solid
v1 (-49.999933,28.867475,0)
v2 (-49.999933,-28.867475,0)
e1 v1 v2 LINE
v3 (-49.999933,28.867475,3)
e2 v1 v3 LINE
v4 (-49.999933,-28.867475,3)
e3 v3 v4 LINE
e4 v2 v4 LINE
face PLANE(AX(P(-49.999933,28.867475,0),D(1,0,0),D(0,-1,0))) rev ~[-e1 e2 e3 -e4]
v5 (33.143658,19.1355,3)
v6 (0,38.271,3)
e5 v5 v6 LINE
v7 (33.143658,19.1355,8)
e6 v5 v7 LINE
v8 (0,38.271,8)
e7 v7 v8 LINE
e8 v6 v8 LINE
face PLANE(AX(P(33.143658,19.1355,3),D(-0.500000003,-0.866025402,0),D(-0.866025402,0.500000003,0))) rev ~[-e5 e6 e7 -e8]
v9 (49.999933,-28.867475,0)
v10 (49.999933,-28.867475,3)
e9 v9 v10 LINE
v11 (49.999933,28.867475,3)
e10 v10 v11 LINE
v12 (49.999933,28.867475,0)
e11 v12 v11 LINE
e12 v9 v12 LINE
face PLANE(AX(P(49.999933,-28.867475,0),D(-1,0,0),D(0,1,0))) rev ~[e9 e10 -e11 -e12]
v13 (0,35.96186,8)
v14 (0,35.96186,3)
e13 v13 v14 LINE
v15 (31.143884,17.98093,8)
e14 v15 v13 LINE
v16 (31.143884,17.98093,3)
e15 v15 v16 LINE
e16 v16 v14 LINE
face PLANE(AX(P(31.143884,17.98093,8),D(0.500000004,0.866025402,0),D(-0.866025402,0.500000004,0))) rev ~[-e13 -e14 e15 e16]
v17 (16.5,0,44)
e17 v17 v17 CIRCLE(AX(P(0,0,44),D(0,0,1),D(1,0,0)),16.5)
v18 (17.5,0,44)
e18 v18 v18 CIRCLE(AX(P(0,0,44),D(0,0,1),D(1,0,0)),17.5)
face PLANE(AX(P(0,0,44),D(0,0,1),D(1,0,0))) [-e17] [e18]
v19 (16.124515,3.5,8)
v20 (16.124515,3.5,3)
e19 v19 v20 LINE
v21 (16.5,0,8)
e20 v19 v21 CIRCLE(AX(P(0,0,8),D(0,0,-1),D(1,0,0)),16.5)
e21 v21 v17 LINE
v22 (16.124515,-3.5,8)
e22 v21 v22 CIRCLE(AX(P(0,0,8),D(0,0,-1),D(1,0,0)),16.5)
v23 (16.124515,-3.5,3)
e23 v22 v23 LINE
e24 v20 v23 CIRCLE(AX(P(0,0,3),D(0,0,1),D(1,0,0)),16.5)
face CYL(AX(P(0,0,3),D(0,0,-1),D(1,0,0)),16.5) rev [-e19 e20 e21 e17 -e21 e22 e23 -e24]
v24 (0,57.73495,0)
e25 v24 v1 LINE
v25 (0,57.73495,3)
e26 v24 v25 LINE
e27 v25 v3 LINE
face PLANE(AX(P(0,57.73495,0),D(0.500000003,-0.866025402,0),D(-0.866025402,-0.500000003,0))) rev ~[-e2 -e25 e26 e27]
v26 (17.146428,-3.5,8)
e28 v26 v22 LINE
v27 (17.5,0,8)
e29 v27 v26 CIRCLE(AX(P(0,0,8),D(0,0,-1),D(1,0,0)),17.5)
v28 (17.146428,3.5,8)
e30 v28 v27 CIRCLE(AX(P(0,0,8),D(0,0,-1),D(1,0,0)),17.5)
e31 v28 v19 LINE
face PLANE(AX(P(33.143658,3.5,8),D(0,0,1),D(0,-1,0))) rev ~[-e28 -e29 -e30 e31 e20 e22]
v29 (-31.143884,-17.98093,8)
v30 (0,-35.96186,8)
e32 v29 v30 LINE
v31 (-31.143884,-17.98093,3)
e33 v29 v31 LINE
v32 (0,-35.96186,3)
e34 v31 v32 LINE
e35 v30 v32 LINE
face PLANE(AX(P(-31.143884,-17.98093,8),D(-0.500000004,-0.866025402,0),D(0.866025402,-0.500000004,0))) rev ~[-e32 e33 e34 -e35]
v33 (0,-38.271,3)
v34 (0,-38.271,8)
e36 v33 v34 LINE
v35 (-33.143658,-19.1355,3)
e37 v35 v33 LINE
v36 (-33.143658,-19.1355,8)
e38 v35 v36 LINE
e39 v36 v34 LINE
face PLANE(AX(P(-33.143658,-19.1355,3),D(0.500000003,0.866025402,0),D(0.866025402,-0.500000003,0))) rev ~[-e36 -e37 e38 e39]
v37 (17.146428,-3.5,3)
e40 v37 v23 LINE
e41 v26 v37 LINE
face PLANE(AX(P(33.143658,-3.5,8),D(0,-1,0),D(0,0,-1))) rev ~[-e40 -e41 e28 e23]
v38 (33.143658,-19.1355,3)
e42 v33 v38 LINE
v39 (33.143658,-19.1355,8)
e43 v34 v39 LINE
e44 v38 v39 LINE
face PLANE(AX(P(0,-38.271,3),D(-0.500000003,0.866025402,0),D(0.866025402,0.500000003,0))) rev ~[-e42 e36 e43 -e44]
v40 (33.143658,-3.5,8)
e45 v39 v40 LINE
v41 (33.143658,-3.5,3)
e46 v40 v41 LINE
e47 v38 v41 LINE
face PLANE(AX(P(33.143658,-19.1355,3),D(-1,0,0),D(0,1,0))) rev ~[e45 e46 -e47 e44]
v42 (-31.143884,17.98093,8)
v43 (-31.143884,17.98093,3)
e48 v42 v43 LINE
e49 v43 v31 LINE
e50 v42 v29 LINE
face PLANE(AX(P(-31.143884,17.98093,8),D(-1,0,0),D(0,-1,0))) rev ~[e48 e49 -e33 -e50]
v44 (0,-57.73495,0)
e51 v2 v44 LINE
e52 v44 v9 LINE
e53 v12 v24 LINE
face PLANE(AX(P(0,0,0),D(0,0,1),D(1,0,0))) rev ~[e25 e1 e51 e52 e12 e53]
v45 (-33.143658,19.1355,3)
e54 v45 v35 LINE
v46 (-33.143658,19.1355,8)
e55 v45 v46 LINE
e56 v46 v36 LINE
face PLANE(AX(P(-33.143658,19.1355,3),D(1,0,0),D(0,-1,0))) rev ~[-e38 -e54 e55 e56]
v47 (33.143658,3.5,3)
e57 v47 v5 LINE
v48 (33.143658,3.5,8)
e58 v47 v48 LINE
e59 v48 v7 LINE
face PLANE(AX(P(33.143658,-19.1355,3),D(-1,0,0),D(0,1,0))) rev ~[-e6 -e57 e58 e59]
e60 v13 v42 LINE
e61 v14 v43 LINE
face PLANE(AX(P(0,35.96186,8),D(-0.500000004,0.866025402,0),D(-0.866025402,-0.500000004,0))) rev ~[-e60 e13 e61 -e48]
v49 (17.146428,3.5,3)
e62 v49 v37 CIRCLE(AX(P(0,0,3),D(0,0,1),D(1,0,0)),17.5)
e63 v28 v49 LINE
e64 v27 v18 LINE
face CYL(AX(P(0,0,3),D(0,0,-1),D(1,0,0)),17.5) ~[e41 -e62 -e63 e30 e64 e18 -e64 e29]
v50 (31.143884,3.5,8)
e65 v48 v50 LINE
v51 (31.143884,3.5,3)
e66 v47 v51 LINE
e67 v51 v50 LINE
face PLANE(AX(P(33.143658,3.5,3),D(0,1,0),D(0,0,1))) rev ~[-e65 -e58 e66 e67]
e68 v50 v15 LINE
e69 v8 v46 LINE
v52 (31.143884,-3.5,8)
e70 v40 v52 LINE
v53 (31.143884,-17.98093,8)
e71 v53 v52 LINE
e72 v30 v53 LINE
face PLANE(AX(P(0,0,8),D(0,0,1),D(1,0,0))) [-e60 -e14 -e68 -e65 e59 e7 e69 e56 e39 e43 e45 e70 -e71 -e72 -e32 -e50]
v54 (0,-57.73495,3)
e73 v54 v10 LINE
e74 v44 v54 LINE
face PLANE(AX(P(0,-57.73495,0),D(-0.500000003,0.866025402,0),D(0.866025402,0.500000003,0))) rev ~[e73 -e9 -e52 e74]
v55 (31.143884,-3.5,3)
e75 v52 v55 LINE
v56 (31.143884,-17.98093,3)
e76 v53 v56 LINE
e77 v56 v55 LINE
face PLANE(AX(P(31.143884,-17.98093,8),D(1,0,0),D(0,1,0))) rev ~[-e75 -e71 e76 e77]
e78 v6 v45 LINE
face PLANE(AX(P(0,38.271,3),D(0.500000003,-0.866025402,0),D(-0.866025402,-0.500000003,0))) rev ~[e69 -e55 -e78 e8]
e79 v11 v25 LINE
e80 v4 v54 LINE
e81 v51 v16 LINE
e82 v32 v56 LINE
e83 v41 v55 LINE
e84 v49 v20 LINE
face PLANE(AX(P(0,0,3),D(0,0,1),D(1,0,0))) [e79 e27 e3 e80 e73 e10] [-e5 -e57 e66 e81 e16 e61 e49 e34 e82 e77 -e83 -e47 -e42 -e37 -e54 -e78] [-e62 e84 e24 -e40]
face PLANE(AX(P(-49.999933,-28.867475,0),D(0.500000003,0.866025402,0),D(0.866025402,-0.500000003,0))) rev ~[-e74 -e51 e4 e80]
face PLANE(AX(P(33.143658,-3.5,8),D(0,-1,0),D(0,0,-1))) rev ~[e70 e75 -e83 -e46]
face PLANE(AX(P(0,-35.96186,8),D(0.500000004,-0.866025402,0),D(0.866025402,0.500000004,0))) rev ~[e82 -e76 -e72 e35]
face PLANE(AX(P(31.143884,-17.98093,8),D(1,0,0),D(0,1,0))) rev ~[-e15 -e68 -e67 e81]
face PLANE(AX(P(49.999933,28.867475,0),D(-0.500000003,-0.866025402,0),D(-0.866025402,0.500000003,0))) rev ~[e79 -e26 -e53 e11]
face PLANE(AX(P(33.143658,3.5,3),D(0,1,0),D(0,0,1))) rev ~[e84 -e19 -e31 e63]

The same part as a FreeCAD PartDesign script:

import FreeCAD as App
import Part
import Sketcher
Q = App.Units.Quantity


def add_polygon(sketch, points):
    """Adds a closed chain of lines whose ends are joined by coincident constraints."""
    first, n = sketch.GeometryCount, len(points)
    for a, b in zip(points, points[1:] + points[:1]):
        sketch.addGeometry(Part.LineSegment(App.Vector(*a, 0), App.Vector(*b, 0)), False)
    for i in range(n):
        sketch.addConstraint(Sketcher.Constraint("Coincident", first + i, 2, first + (i + 1) % n, 1))

doc = App.newDocument("Part")
params = doc.addObject("Spreadsheet::Sheet", "Params")
for row, (alias, value) in enumerate([
    ("pad1_length", "3 mm"),
    ("pad2_length", "5 mm"),
    ("pocket1_length", "5 mm"),
    ("sketch4_diameter", "35 mm"),
    ("sketch4_diameter2", "33 mm"),
    ("pad3_length", "41 mm"),
    ("sketch5_width", "7 mm"),
    ("sketch5_height", "5 mm"),
    ("pocket2_length", "25 mm"),
], start=1):
    params.set(f"A{row}", alias)
    params.set(f"B{row}", "=" + value)
    params.setAlias(f"B{row}", alias)

body = doc.addObject("PartDesign::Body", "Body")

sketch1 = doc.addObject("Sketcher::SketchObject", "Sketch")
body.addObject(sketch1)
sketch1.AttachmentSupport = (doc.XY_Plane, [""])
sketch1.MapMode = "FlatFace"
add_polygon(sketch1, [(49.999933, 28.867475), (0, 57.73495), (-49.999933, 28.867475), (-49.999933, -28.867475), (0, -57.73495), (49.999933, -28.867475)])
sketch1.addConstraint([
    Sketcher.Constraint("Vertical", 2),
    Sketcher.Constraint("Vertical", 5),
    Sketcher.Constraint("Symmetric", 0, 2, 3, 2, -1, 1),
    Sketcher.Constraint("Symmetric", 1, 2, 4, 2, -1, 1),
    Sketcher.Constraint("PointOnObject", 0, 2, -2),
    Sketcher.Constraint("Parallel", 0, 3),
    Sketcher.Constraint("Horizontal", 2, 2, 4, 2),
    Sketcher.Constraint("Angle", 0, Q("150 deg")),
    Sketcher.Constraint("DistanceY", 2, 2, 2, 1, Q("57.73495 mm")),
    Sketcher.Constraint("DistanceY", 3, 2, 0, 2, Q("115.4699 mm")),
])
pad1 = doc.addObject("PartDesign::Pad", "Pad")
body.addObject(pad1)
pad1.Profile = sketch1
pad1.setExpression("Length", "Params.pad1_length")

sketch2 = doc.addObject("Sketcher::SketchObject", "Sketch001")
body.addObject(sketch2)
sketch2.AttachmentSupport = (doc.XY_Plane, [""])
sketch2.MapMode = "FlatFace"
sketch2.AttachmentOffset = App.Placement(App.Vector(0, 0, 3), App.Rotation())
add_polygon(sketch2, [(33.143658, 19.1355), (0, 38.271), (-33.143658, 19.1355), (-33.143658, -19.1355), (0, -38.271), (33.143658, -19.1355)])
sketch2.addConstraint([
    Sketcher.Constraint("Vertical", 2),
    Sketcher.Constraint("Vertical", 5),
    Sketcher.Constraint("Symmetric", 0, 2, 3, 2, -1, 1),
    Sketcher.Constraint("Symmetric", 1, 2, 4, 2, -1, 1),
    Sketcher.Constraint("PointOnObject", 0, 2, -2),
    Sketcher.Constraint("Parallel", 0, 3),
    Sketcher.Constraint("Horizontal", 2, 2, 4, 2),
    Sketcher.Constraint("Angle", 0, Q("150 deg")),
    Sketcher.Constraint("DistanceY", 2, 2, 2, 1, Q("38.271 mm")),
    Sketcher.Constraint("Distance", 0, Q("38.271 mm")),
])
pad2 = doc.addObject("PartDesign::Pad", "Pad001")
body.addObject(pad2)
pad2.Profile = sketch2
pad2.setExpression("Length", "Params.pad2_length")

sketch3 = doc.addObject("Sketcher::SketchObject", "Sketch002")
body.addObject(sketch3)
sketch3.AttachmentSupport = (doc.XY_Plane, [""])
sketch3.MapMode = "FlatFace"
sketch3.AttachmentOffset = App.Placement(App.Vector(0, 0, 8), App.Rotation())
add_polygon(sketch3, [(31.143884, 17.98093), (0, 35.96186), (-31.143884, 17.98093), (-31.143884, -17.98093), (0, -35.96186), (31.143884, -17.98093)])
sketch3.addConstraint([
    Sketcher.Constraint("Vertical", 2),
    Sketcher.Constraint("Vertical", 5),
    Sketcher.Constraint("Symmetric", 0, 2, 3, 2, -1, 1),
    Sketcher.Constraint("Symmetric", 1, 2, 4, 2, -1, 1),
    Sketcher.Constraint("PointOnObject", 0, 2, -2),
    Sketcher.Constraint("Parallel", 0, 3),
    Sketcher.Constraint("Horizontal", 2, 2, 4, 2),
    Sketcher.Constraint("Angle", 0, Q("150 deg")),
    Sketcher.Constraint("DistanceY", 2, 2, 2, 1, Q("35.96186 mm")),
    Sketcher.Constraint("Distance", 0, Q("35.96186 mm")),
])
pocket1 = doc.addObject("PartDesign::Pocket", "Pocket")
body.addObject(pocket1)
pocket1.Profile = sketch3
pocket1.setExpression("Length", "Params.pocket1_length")

sketch4 = doc.addObject("Sketcher::SketchObject", "Sketch003")
body.addObject(sketch4)
sketch4.AttachmentSupport = (doc.XY_Plane, [""])
sketch4.MapMode = "FlatFace"
sketch4.AttachmentOffset = App.Placement(App.Vector(0, 0, 3), App.Rotation())
sketch4.addGeometry([
    Part.Circle(App.Vector(0, 0, 0), App.Vector(0, 0, 1), 17.5),
    Part.Circle(App.Vector(0, 0, 0), App.Vector(0, 0, 1), 16.5),
], False)
sketch4.addConstraint([
    Sketcher.Constraint("Coincident", 0, 3, -1, 1),
    Sketcher.Constraint("Coincident", 1, 3, -1, 1),
    Sketcher.Constraint("Diameter", 0, Q("35 mm")),
    Sketcher.Constraint("Diameter", 1, Q("33 mm")),
])
sketch4.setExpression("Constraints[2]", "Params.sketch4_diameter")
sketch4.setExpression("Constraints[3]", "Params.sketch4_diameter2")
pad3 = doc.addObject("PartDesign::Pad", "Pad002")
body.addObject(pad3)
pad3.Profile = sketch4
pad3.setExpression("Length", "Params.pad3_length")

sketch5 = doc.addObject("Sketcher::SketchObject", "Sketch004")
body.addObject(sketch5)
sketch5.AttachmentSupport = (doc.YZ_Plane, [""])
sketch5.MapMode = "FlatFace"
sketch5.AttachmentOffset = App.Placement(App.Vector(0, 0, 33.143658), App.Rotation())
add_polygon(sketch5, [(-3.5, 3), (3.5, 3), (3.5, 8), (-3.5, 8)])
sketch5.addConstraint([
    Sketcher.Constraint("Horizontal", 0),
    Sketcher.Constraint("Vertical", 1),
    Sketcher.Constraint("Horizontal", 2),
    Sketcher.Constraint("Vertical", 3),
    Sketcher.Constraint("DistanceX", 0, 1, 0, 2, Q("7 mm")),
    Sketcher.Constraint("DistanceY", 1, 1, 1, 2, Q("5 mm")),
    Sketcher.Constraint("DistanceY", -1, 1, 0, 2, Q("3 mm")),
    Sketcher.Constraint("DistanceX", -1, 1, 0, 2, Q("3.5 mm")),
])
sketch5.setExpression("Constraints[8]", "Params.sketch5_width")
sketch5.setExpression("Constraints[9]", "Params.sketch5_height")
pocket2 = doc.addObject("PartDesign::Pocket", "Pocket001")
body.addObject(pocket2)
pocket2.Profile = sketch5
pocket2.setExpression("Length", "Params.pocket2_length")

doc.recompute()
